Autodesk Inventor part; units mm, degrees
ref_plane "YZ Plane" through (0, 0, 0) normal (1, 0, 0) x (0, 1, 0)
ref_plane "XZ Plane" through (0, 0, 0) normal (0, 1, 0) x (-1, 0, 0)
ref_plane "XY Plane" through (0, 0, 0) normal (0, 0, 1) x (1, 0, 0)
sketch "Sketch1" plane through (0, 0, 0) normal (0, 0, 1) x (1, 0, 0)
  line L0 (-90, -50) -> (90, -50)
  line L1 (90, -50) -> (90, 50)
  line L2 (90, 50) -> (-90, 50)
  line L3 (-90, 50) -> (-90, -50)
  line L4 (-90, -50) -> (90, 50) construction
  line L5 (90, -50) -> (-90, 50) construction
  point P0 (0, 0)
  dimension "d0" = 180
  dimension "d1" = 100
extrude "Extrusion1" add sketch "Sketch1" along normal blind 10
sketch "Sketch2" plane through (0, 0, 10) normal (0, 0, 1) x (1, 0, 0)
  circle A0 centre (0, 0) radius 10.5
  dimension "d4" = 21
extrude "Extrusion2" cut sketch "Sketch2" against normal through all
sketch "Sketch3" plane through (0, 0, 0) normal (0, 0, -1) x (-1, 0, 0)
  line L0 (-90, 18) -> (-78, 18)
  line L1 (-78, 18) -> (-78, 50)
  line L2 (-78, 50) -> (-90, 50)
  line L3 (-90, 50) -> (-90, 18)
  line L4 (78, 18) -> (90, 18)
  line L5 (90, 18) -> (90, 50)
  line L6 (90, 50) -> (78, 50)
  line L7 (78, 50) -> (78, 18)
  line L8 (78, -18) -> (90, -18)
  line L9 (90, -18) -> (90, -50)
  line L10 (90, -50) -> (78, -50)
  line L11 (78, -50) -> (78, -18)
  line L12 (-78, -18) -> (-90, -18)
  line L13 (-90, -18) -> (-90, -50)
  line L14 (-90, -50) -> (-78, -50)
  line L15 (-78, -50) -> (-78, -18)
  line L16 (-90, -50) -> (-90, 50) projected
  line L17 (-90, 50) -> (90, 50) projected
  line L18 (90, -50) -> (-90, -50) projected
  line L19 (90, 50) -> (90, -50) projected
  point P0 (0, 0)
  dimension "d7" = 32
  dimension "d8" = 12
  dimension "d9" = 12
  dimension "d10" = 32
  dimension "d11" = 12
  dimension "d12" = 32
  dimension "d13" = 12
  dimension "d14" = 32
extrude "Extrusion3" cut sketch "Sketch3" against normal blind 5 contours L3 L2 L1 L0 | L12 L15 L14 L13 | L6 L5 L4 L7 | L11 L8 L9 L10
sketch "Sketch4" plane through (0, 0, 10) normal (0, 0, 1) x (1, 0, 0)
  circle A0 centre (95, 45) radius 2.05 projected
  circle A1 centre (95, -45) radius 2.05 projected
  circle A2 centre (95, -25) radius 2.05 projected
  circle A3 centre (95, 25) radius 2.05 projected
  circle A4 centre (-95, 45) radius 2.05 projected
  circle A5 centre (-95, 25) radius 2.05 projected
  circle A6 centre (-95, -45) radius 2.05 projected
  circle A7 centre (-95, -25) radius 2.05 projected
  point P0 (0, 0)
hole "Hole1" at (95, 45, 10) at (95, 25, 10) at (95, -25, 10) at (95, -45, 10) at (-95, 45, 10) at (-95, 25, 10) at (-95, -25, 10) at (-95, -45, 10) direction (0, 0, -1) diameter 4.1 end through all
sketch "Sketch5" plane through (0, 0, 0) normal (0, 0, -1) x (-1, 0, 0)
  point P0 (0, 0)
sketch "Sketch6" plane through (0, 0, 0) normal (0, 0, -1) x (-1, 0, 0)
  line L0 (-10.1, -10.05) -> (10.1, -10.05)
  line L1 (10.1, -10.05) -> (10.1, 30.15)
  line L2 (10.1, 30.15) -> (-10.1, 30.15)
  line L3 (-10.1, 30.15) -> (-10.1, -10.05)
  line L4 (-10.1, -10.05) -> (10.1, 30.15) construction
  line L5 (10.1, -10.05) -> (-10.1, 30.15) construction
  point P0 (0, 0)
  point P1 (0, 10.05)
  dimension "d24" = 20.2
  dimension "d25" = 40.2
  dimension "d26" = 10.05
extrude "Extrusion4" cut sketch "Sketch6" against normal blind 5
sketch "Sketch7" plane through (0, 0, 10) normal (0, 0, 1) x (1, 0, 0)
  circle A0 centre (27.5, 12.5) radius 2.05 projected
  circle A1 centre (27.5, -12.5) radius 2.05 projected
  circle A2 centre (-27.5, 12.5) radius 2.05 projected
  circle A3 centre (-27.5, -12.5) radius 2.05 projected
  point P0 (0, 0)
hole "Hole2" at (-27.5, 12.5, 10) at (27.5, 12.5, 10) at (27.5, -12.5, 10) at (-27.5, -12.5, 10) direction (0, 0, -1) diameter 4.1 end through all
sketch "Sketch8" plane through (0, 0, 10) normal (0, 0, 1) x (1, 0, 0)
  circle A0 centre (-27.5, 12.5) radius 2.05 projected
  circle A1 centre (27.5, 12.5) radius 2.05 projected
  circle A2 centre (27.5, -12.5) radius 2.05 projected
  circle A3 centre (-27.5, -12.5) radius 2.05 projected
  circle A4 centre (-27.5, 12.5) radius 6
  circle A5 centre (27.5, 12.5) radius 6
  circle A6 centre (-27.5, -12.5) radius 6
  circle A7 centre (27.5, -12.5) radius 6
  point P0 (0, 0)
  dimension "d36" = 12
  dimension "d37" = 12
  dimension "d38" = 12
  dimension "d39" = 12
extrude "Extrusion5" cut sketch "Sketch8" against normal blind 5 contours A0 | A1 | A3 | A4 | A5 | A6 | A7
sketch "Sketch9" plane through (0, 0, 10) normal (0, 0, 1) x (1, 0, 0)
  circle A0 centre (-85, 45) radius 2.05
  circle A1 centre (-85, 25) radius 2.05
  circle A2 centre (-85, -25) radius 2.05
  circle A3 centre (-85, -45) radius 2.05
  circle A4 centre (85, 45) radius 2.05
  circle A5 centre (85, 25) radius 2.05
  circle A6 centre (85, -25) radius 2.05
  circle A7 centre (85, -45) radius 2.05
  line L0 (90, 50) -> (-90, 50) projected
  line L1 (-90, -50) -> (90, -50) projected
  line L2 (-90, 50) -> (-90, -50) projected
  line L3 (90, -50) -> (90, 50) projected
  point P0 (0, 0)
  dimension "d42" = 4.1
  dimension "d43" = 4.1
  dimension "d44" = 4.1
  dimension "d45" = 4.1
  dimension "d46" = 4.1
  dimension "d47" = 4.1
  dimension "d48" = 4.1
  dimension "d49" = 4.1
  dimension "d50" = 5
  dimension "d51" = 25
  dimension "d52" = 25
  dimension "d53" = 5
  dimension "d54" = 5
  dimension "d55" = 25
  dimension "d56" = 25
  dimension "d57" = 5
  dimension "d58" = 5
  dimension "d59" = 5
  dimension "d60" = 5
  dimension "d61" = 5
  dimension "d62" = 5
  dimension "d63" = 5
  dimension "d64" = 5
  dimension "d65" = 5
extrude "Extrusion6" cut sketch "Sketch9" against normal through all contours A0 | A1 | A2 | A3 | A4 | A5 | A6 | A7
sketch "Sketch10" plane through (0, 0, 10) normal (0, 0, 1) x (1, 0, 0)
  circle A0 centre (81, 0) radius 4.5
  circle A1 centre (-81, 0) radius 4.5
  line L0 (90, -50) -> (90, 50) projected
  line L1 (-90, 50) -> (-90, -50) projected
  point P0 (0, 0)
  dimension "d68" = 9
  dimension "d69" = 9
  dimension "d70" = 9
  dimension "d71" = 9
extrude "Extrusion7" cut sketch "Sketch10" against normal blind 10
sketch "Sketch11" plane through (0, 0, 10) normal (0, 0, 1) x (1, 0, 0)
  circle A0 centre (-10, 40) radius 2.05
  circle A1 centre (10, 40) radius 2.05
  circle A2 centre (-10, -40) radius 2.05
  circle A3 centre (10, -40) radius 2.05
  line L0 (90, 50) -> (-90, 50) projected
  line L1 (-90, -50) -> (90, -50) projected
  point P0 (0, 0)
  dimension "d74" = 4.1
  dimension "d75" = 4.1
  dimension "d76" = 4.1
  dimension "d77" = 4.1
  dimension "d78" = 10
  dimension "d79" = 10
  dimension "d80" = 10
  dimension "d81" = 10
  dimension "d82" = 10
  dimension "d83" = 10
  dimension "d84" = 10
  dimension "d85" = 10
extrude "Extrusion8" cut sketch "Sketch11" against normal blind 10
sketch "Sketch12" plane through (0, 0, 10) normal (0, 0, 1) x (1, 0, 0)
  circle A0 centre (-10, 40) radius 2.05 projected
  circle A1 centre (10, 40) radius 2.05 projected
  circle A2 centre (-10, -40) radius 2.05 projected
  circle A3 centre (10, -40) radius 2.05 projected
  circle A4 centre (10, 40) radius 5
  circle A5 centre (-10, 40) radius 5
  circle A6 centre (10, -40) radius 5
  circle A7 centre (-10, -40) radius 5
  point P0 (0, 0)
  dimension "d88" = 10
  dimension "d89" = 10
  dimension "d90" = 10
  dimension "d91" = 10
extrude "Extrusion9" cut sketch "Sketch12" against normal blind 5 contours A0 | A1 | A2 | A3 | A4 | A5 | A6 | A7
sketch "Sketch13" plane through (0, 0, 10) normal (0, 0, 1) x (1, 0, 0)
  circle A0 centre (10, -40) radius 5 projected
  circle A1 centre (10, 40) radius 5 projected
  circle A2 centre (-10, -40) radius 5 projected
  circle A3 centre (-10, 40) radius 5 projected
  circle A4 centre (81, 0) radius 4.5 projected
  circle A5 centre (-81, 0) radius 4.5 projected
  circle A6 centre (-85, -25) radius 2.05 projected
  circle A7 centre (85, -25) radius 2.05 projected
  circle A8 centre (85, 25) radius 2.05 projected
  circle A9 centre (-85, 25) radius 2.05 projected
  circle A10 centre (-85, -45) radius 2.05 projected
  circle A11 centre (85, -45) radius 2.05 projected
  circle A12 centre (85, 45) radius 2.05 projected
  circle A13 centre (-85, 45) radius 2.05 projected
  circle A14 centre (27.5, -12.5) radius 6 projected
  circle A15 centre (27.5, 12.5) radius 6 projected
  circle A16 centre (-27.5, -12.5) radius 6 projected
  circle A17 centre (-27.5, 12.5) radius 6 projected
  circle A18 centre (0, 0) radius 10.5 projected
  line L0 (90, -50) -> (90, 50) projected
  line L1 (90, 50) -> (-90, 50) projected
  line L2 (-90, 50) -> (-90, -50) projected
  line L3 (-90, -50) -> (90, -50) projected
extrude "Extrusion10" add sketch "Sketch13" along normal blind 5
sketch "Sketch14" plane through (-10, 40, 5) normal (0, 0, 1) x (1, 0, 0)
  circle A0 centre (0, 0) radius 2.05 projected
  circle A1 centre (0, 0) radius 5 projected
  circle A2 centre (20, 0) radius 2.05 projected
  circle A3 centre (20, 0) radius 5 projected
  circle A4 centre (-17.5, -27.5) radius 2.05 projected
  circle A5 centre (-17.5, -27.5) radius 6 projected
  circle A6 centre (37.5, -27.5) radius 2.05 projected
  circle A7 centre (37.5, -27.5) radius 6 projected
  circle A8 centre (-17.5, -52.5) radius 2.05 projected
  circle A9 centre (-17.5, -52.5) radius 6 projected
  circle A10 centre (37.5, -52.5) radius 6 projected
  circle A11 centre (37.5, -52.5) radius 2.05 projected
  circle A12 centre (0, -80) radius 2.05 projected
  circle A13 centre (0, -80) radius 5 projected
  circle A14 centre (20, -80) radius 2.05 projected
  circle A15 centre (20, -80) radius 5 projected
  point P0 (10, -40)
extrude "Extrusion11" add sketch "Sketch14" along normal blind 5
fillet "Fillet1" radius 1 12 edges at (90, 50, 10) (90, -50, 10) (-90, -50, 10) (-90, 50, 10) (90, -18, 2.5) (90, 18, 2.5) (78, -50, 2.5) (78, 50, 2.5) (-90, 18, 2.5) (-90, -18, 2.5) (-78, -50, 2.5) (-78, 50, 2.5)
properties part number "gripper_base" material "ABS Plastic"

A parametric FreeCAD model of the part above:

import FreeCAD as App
import Part
import Sketcher
from FreeCAD import Vector
Q = App.Units.Quantity


def edges_at(feature, points):
    """Names of the edges that pass closest to the given points."""
    edges = feature.Shape.Edges
    near = lambda p: min(range(len(edges)), key=lambda i: edges[i].distToShape(Part.Vertex(*p))[0])
    return sorted({f"Edge{near(p) + 1}" for p in points})

doc = App.newDocument("Part")
body = doc.addObject("PartDesign::Body", "Body")

# Sketch on XY plane
sketch1 = doc.addObject("Sketcher::SketchObject", "Sketch")
body.addObject(sketch1)
sketch1.AttachmentSupport = (doc.XY_Plane, [""])
sketch1.MapMode = "FlatFace"
sketch1.addGeometry([
    Part.LineSegment(Vector(-90, 50, 0), Vector(-90, -50, 0)),
    Part.LineSegment(Vector(-90, -50, 0), Vector(90, -50, 0)),
    Part.LineSegment(Vector(90, -50, 0), Vector(90, 50, 0)),
    Part.LineSegment(Vector(90, 50, 0), Vector(-90, 50, 0)),
], False)
sketch1.addConstraint([
    Sketcher.Constraint("Coincident", 0, 2, 1, 1),
    Sketcher.Constraint("Coincident", 1, 2, 2, 1),
    Sketcher.Constraint("Coincident", 2, 2, 3, 1),
    Sketcher.Constraint("Coincident", 3, 2, 0, 1),
    Sketcher.Constraint("Vertical", 0),
    Sketcher.Constraint("Horizontal", 1),
    Sketcher.Constraint("Vertical", 2),
    Sketcher.Constraint("Horizontal", 3),
    Sketcher.Constraint("Symmetric", 0, 2, 2, 2, -1, 1),
    Sketcher.Constraint("DistanceX", 1, 1, 1, 2, Q("180 mm")),
    Sketcher.Constraint("DistanceY", 0, 2, 0, 1, Q("100 mm")),
])
pad1 = doc.addObject("PartDesign::Pad", "Pad")
body.addObject(pad1)
pad1.Profile = sketch1
pad1.Length = 10

# Sketch on XY plane
sketch2 = doc.addObject("Sketcher::SketchObject", "Sketch001")
body.addObject(sketch2)
sketch2.AttachmentSupport = (doc.XY_Plane, [""])
sketch2.MapMode = "FlatFace"
sketch2.AttachmentOffset = App.Placement(Vector(0, 0, 10), App.Rotation())
sketch2.addGeometry(Part.Circle(Vector(0, 0, 0), Vector(0, 0, 1), 10), False)
sketch2.addConstraint([
    Sketcher.Constraint("Coincident", 0, 3, -1, 1),
    Sketcher.Constraint("Diameter", 0, Q("21 mm")),
])
pocket1 = doc.addObject("PartDesign::Pocket", "Pocket")
body.addObject(pocket1)
pocket1.Profile = sketch2
pocket1.Type = "ThroughAll"

# Sketch on XY plane
sketch3 = doc.addObject("Sketcher::SketchObject", "Sketch002")
body.addObject(sketch3)
sketch3.AttachmentSupport = (doc.XY_Plane, [""])
sketch3.MapMode = "FlatFace"
sketch3.addGeometry([
    Part.LineSegment(Vector(90, 50, 0), Vector(90, 18, 0)),  # 0
    Part.LineSegment(Vector(90, 18, 0), Vector(78, 18, 0)),  # 1
    Part.LineSegment(Vector(78, 18, 0), Vector(78, 50, 0)),  # 2
    Part.LineSegment(Vector(78, 50, 0), Vector(90, 50, 0)),  # 3
    Part.LineSegment(Vector(78, -18, 0), Vector(90, -18, 0)),  # 4
    Part.LineSegment(Vector(90, -18, 0), Vector(90, -50, 0)),  # 5
    Part.LineSegment(Vector(90, -50, 0), Vector(78, -50, 0)),  # 6
    Part.LineSegment(Vector(78, -50, 0), Vector(78, -18, 0)),  # 7
    Part.LineSegment(Vector(-90, 50, 0), Vector(-78, 50, 0)),  # 8
    Part.LineSegment(Vector(-78, 50, 0), Vector(-78, 18, 0)),  # 9
    Part.LineSegment(Vector(-78, 18, 0), Vector(-90, 18, 0)),  # 10
    Part.LineSegment(Vector(-90, 18, 0), Vector(-90, 50, 0)),  # 11
    Part.LineSegment(Vector(-78, -18, 0), Vector(-78, -50, 0)),  # 12
    Part.LineSegment(Vector(-78, -50, 0), Vector(-90, -50, 0)),  # 13
    Part.LineSegment(Vector(-90, -50, 0), Vector(-90, -18, 0)),  # 14
    Part.LineSegment(Vector(-90, -18, 0), Vector(-78, -18, 0)),  # 15
], False)
sketch3.addConstraint([
    Sketcher.Constraint("Coincident", 0, 2, 1, 1),
    Sketcher.Constraint("Coincident", 1, 2, 2, 1),
    Sketcher.Constraint("Coincident", 2, 2, 3, 1),
    Sketcher.Constraint("Coincident", 3, 2, 0, 1),
    Sketcher.Constraint("Coincident", 4, 2, 5, 1),
    Sketcher.Constraint("Coincident", 5, 2, 6, 1),
    Sketcher.Constraint("Coincident", 6, 2, 7, 1),
    Sketcher.Constraint("Coincident", 7, 2, 4, 1),
    Sketcher.Constraint("Coincident", 8, 2, 9, 1),
    Sketcher.Constraint("Coincident", 9, 2, 10, 1),
    Sketcher.Constraint("Coincident", 10, 2, 11, 1),
    Sketcher.Constraint("Coincident", 11, 2, 8, 1),
    Sketcher.Constraint("Coincident", 12, 2, 13, 1),
    Sketcher.Constraint("Coincident", 13, 2, 14, 1),
    Sketcher.Constraint("Coincident", 14, 2, 15, 1),
    Sketcher.Constraint("Coincident", 15, 2, 12, 1),
    Sketcher.Constraint("Vertical", 0),
    Sketcher.Constraint("Horizontal", 1),
    Sketcher.Constraint("Vertical", 2),
    Sketcher.Constraint("Horizontal", 3),
    Sketcher.Constraint("Horizontal", 4),
    Sketcher.Constraint("Vertical", 5),
    Sketcher.Constraint("Horizontal", 6),
    Sketcher.Constraint("Vertical", 7),
    Sketcher.Constraint("Horizontal", 8),
    Sketcher.Constraint("Vertical", 9),
    Sketcher.Constraint("Horizontal", 10),
    Sketcher.Constraint("Vertical", 11),
    Sketcher.Constraint("Vertical", 12),
    Sketcher.Constraint("Horizontal", 13),
    Sketcher.Constraint("Vertical", 14),
    Sketcher.Constraint("Horizontal", 15),
    Sketcher.Constraint("Symmetric", 6, 2, 8, 2, -1, 1),
    Sketcher.Constraint("Symmetric", 4, 2, 10, 2, -1, 1),
    Sketcher.Constraint("Symmetric", 2, 2, 12, 2, -1, 1),
    Sketcher.Constraint("Symmetric", 0, 2, 14, 2, -1, 1),
    Sketcher.Constraint("Symmetric", 2, 2, 8, 2, -2),
    Sketcher.Constraint("Symmetric", 0, 2, 10, 2, -2),
    Sketcher.Constraint("DistanceX", 1, 2, 1, 1, Q("12 mm")),
    Sketcher.Constraint("DistanceY", 0, 2, 0, 1, Q("32 mm")),
    Sketcher.Constraint("DistanceX", -1, 1, 0, 2, Q("90 mm")),
    Sketcher.Constraint("DistanceY", -1, 1, 0, 2, Q("18 mm")),
])
pocket2 = doc.addObject("PartDesign::Pocket", "Pocket001")
body.addObject(pocket2)
pocket2.Profile = sketch3
pocket2.Length = 5
pocket2.Reversed = True

# Sketch on XY plane
sketch4 = doc.addObject("Sketcher::SketchObject", "Sketch003")
body.addObject(sketch4)
sketch4.AttachmentSupport = (doc.XY_Plane, [""])
sketch4.MapMode = "FlatFace"
sketch4.AttachmentOffset = App.Placement(Vector(0, 0, 10), App.Rotation())
sketch4.addGeometry([
    Part.Circle(Vector(95, 45, 0), Vector(0, 0, 1), 2),  # 0
    Part.Circle(Vector(95, 25, 0), Vector(0, 0, 1), 2),  # 1
    Part.Circle(Vector(95, -25, 0), Vector(0, 0, 1), 2),  # 2
    Part.Circle(Vector(95, -45, 0), Vector(0, 0, 1), 2),  # 3
    Part.Circle(Vector(-95, 45, 0), Vector(0, 0, 1), 2),  # 4
    Part.Circle(Vector(-95, 25, 0), Vector(0, 0, 1), 2),  # 5
    Part.Circle(Vector(-95, -25, 0), Vector(0, 0, 1), 2),  # 6
    Part.Circle(Vector(-95, -45, 0), Vector(0, 0, 1), 2),  # 7
], False)
sketch4.addConstraint([
    Sketcher.Constraint("Equal", 0, 1),
    Sketcher.Constraint("Equal", 1, 2),
    Sketcher.Constraint("Equal", 2, 3),
    Sketcher.Constraint("Equal", 3, 4),
    Sketcher.Constraint("Equal", 4, 5),
    Sketcher.Constraint("Equal", 5, 6),
    Sketcher.Constraint("Equal", 6, 7),
    Sketcher.Constraint("Symmetric", 3, 3, 4, 3, -1, 1),
    Sketcher.Constraint("Symmetric", 2, 3, 5, 3, -1, 1),
    Sketcher.Constraint("Symmetric", 1, 3, 6, 3, -1, 1),
    Sketcher.Constraint("Symmetric", 0, 3, 7, 3, -1, 1),
    Sketcher.Constraint("Symmetric", 0, 3, 4, 3, -2),
    Sketcher.Constraint("Symmetric", 1, 3, 5, 3, -2),
    Sketcher.Constraint("Vertical", 0, 3, 1, 3),
    Sketcher.Constraint("Diameter", 0, Q("4.1 mm")),
    Sketcher.Constraint("DistanceX", -1, 1, 0, 3, Q("95 mm")),
    Sketcher.Constraint("DistanceY", -1, 1, 0, 3, Q("45 mm")),
    Sketcher.Constraint("DistanceY", -1, 1, 1, 3, Q("25 mm")),
])
doc.recompute()
hole = doc.addObject("PartDesign::Hole", "Hole")
body.addObject(hole)
hole.Profile = sketch4
hole.ThreadType = "None"
hole.Diameter = 4.1
hole.DepthType = "ThroughAll"

# Sketch on XY plane
sketch5 = doc.addObject("Sketcher::SketchObject", "Sketch004")
body.addObject(sketch5)
sketch5.AttachmentSupport = (doc.XY_Plane, [""])
sketch5.MapMode = "FlatFace"
sketch5.addGeometry([
    Part.LineSegment(Vector(10, 30, 0), Vector(10, -10, 0)),
    Part.LineSegment(Vector(10, -10, 0), Vector(-10, -10, 0)),
    Part.LineSegment(Vector(-10, -10, 0), Vector(-10, 30, 0)),
    Part.LineSegment(Vector(-10, 30, 0), Vector(10, 30, 0)),
], False)
sketch5.addConstraint([
    Sketcher.Constraint("Coincident", 0, 2, 1, 1),
    Sketcher.Constraint("Coincident", 1, 2, 2, 1),
    Sketcher.Constraint("Coincident", 2, 2, 3, 1),
    Sketcher.Constraint("Coincident", 3, 2, 0, 1),
    Sketcher.Constraint("Vertical", 0),
    Sketcher.Constraint("Horizontal", 1),
    Sketcher.Constraint("Vertical", 2),
    Sketcher.Constraint("Horizontal", 3),
    Sketcher.Constraint("DistanceX", 1, 2, 1, 1, Q("20.2 mm")),
    Sketcher.Constraint("DistanceY", 0, 2, 0, 1, Q("40.2 mm")),
    Sketcher.Constraint("DistanceY", 0, 2, -1, 1, Q("10.05 mm")),
    Sketcher.Constraint("DistanceX", -1, 1, 0, 2, Q("10.1 mm")),
])
pocket3 = doc.addObject("PartDesign::Pocket", "Pocket002")
body.addObject(pocket3)
pocket3.Profile = sketch5
pocket3.Length = 5
pocket3.Reversed = True

# Sketch on XY plane
sketch6 = doc.addObject("Sketcher::SketchObject", "Sketch005")
body.addObject(sketch6)
sketch6.AttachmentSupport = (doc.XY_Plane, [""])
sketch6.MapMode = "FlatFace"
sketch6.AttachmentOffset = App.Placement(Vector(0, 0, 10), App.Rotation())
sketch6.addGeometry([
    Part.Circle(Vector(-27.5, 12.5, 0), Vector(0, 0, 1), 2),
    Part.Circle(Vector(27.5, 12.5, 0), Vector(0, 0, 1), 2),
    Part.Circle(Vector(27.5, -12.5, 0), Vector(0, 0, 1), 2),
    Part.Circle(Vector(-27.5, -12.5, 0), Vector(0, 0, 1), 2),
], False)
sketch6.addConstraint([
    Sketcher.Constraint("Equal", 0, 1),
    Sketcher.Constraint("Equal", 1, 2),
    Sketcher.Constraint("Equal", 2, 3),
    Sketcher.Constraint("Symmetric", 0, 3, 2, 3, -1, 1),
    Sketcher.Constraint("Symmetric", 1, 3, 3, 3, -1, 1),
    Sketcher.Constraint("Symmetric", 0, 3, 1, 3, -2),
    Sketcher.Constraint("Diameter", 0, Q("4.1 mm")),
    Sketcher.Constraint("DistanceX", 0, 3, 1, 3, Q("55 mm")),
    Sketcher.Constraint("DistanceY", 2, 3, 1, 3, Q("25 mm")),
])
doc.recompute()
hole2 = doc.addObject("PartDesign::Hole", "Hole001")
body.addObject(hole2)
hole2.Profile = sketch6
hole2.ThreadType = "None"
hole2.Diameter = 4.1
hole2.DepthType = "ThroughAll"

# Sketch on XY plane
sketch7 = doc.addObject("Sketcher::SketchObject", "Sketch006")
body.addObject(sketch7)
sketch7.AttachmentSupport = (doc.XY_Plane, [""])
sketch7.MapMode = "FlatFace"
sketch7.AttachmentOffset = App.Placement(Vector(0, 0, 10), App.Rotation())
sketch7.addGeometry([
    Part.Circle(Vector(-27.5, 12.5, 0), Vector(0, 0, 1), 6),  # 0
    Part.Circle(Vector(27.5, 12.5, 0), Vector(0, 0, 1), 6),  # 1
    Part.Circle(Vector(-27.5, -12.5, 0), Vector(0, 0, 1), 6),  # 2
    Part.Circle(Vector(27.5, -12.5, 0), Vector(0, 0, 1), 6),  # 3
    Part.Circle(Vector(27.5, -12.5, 0), Vector(0, 0, 1), 2),  # 4
], False)
sketch7.addConstraint([
    Sketcher.Constraint("Coincident", 4, 3, 3, 3),
    Sketcher.Constraint("Equal", 0, 1),
    Sketcher.Constraint("Equal", 1, 2),
    Sketcher.Constraint("Equal", 2, 3),
    Sketcher.Constraint("Symmetric", 1, 3, 2, 3, -1, 1),
    Sketcher.Constraint("Symmetric", 0, 3, 3, 3, -1, 1),
    Sketcher.Constraint("Symmetric", 0, 3, 1, 3, -2),
    Sketcher.Constraint("Diameter", 0, Q("12 mm")),
    Sketcher.Constraint("Diameter", 4, Q("4.1 mm")),
    Sketcher.Constraint("DistanceX", 0, 3, 1, 3, Q("55 mm")),
    Sketcher.Constraint("DistanceY", 2, 3, 0, 3, Q("25 mm")),
])
pocket4 = doc.addObject("PartDesign::Pocket", "Pocket003")
body.addObject(pocket4)
pocket4.Profile = sketch7
pocket4.Length = 5

# Sketch on XY plane
sketch8 = doc.addObject("Sketcher::SketchObject", "Sketch007")
body.addObject(sketch8)
sketch8.AttachmentSupport = (doc.XY_Plane, [""])
sketch8.MapMode = "FlatFace"
sketch8.AttachmentOffset = App.Placement(Vector(0, 0, 10), App.Rotation())
sketch8.addGeometry([
    Part.Circle(Vector(-85, 45, 0), Vector(0, 0, 1), 2),  # 0
    Part.Circle(Vector(-85, 25, 0), Vector(0, 0, 1), 2),  # 1
    Part.Circle(Vector(-85, -25, 0), Vector(0, 0, 1), 2),  # 2
    Part.Circle(Vector(-85, -45, 0), Vector(0, 0, 1), 2),  # 3
    Part.Circle(Vector(85, 45, 0), Vector(0, 0, 1), 2),  # 4
    Part.Circle(Vector(85, 25, 0), Vector(0, 0, 1), 2),  # 5
    Part.Circle(Vector(85, -25, 0), Vector(0, 0, 1), 2),  # 6
    Part.Circle(Vector(85, -45, 0), Vector(0, 0, 1), 2),  # 7
], False)
sketch8.addConstraint([
    Sketcher.Constraint("Equal", 0, 1),
    Sketcher.Constraint("Equal", 1, 2),
    Sketcher.Constraint("Equal", 2, 3),
    Sketcher.Constraint("Equal", 3, 4),
    Sketcher.Constraint("Equal", 4, 5),
    Sketcher.Constraint("Equal", 5, 6),
    Sketcher.Constraint("Equal", 6, 7),
    Sketcher.Constraint("Symmetric", 3, 3, 4, 3, -1, 1),
    Sketcher.Constraint("Symmetric", 2, 3, 5, 3, -1, 1),
    Sketcher.Constraint("Symmetric", 1, 3, 6, 3, -1, 1),
    Sketcher.Constraint("Symmetric", 0, 3, 7, 3, -1, 1),
    Sketcher.Constraint("Symmetric", 0, 3, 4, 3, -2),
    Sketcher.Constraint("Symmetric", 1, 3, 5, 3, -2),
    Sketcher.Constraint("Vertical", 0, 3, 1, 3),
    Sketcher.Constraint("Diameter", 0, Q("4.1 mm")),
    Sketcher.Constraint("DistanceY", -1, 1, 1, 3, Q("25 mm")),
    Sketcher.Constraint("DistanceX", 0, 3, -1, 1, Q("85 mm")),
    Sketcher.Constraint("DistanceY", -1, 1, 0, 3, Q("45 mm")),
])
pocket5 = doc.addObject("PartDesign::Pocket", "Pocket004")
body.addObject(pocket5)
pocket5.Profile = sketch8
pocket5.Type = "ThroughAll"

# Sketch on XY plane
sketch9 = doc.addObject("Sketcher::SketchObject", "Sketch008")
body.addObject(sketch9)
sketch9.AttachmentSupport = (doc.XY_Plane, [""])
sketch9.MapMode = "FlatFace"
sketch9.AttachmentOffset = App.Placement(Vector(0, 0, 10), App.Rotation())
sketch9.addGeometry([
    Part.Circle(Vector(81, 0, 0), Vector(0, 0, 1), 4.5),
    Part.Circle(Vector(-81, 0, 0), Vector(0, 0, 1), 4.5),
], False)
sketch9.addConstraint([
    Sketcher.Constraint("Equal", 0, 1),
    Sketcher.Constraint("Symmetric", 0, 3, 1, 3, -1, 1),
    Sketcher.Constraint("PointOnObject", 0, 3, -1),
    Sketcher.Constraint("Diameter", 0, Q("9 mm")),
    Sketcher.Constraint("DistanceX", -1, 1, 0, 3, Q("81 mm")),
])
pocket6 = doc.addObject("PartDesign::Pocket", "Pocket005")
body.addObject(pocket6)
pocket6.Profile = sketch9
pocket6.Length = 10

# Sketch on XY plane
sketch10 = doc.addObject("Sketcher::SketchObject", "Sketch009")
body.addObject(sketch10)
sketch10.AttachmentSupport = (doc.XY_Plane, [""])
sketch10.MapMode = "FlatFace"
sketch10.AttachmentOffset = App.Placement(Vector(0, 0, 10), App.Rotation())
sketch10.addGeometry([
    Part.Circle(Vector(-10, 40, 0), Vector(0, 0, 1), 2),
    Part.Circle(Vector(10, 40, 0), Vector(0, 0, 1), 2),
    Part.Circle(Vector(-10, -40, 0), Vector(0, 0, 1), 2),
    Part.Circle(Vector(10, -40, 0), Vector(0, 0, 1), 2),
], False)
sketch10.addConstraint([
    Sketcher.Constraint("Equal", 0, 1),
    Sketcher.Constraint("Equal", 1, 2),
    Sketcher.Constraint("Equal", 2, 3),
    Sketcher.Constraint("Symmetric", 1, 3, 2, 3, -1, 1),
    Sketcher.Constraint("Symmetric", 0, 3, 3, 3, -1, 1),
    Sketcher.Constraint("Symmetric", 0, 3, 1, 3, -2),
    Sketcher.Constraint("Diameter", 0, Q("4.1 mm")),
    Sketcher.Constraint("DistanceX", 0, 3, -1, 1, Q("10 mm")),
    Sketcher.Constraint("DistanceY", -1, 1, 0, 3, Q("40 mm")),
])
pocket7 = doc.addObject("PartDesign::Pocket", "Pocket006")
body.addObject(pocket7)
pocket7.Profile = sketch10
pocket7.Length = 10

# Sketch on XY plane
sketch11 = doc.addObject("Sketcher::SketchObject", "Sketch010")
body.addObject(sketch11)
sketch11.AttachmentSupport = (doc.XY_Plane, [""])
sketch11.MapMode = "FlatFace"
sketch11.AttachmentOffset = App.Placement(Vector(0, 0, 10), App.Rotation())
sketch11.addGeometry([
    Part.Circle(Vector(-10, 40, 0), Vector(0, 0, 1), 5),
    Part.Circle(Vector(10, 40, 0), Vector(0, 0, 1), 5),
    Part.Circle(Vector(-10, -40, 0), Vector(0, 0, 1), 5),
    Part.Circle(Vector(10, -40, 0), Vector(0, 0, 1), 5),
], False)
sketch11.addConstraint([
    Sketcher.Constraint("Equal", 0, 1),
    Sketcher.Constraint("Equal", 1, 2),
    Sketcher.Constraint("Equal", 2, 3),
    Sketcher.Constraint("Symmetric", 1, 3, 2, 3, -1, 1),
    Sketcher.Constraint("Symmetric", 0, 3, 3, 3, -1, 1),
    Sketcher.Constraint("Symmetric", 0, 3, 1, 3, -2),
    Sketcher.Constraint("Diameter", 0, Q("10 mm")),
    Sketcher.Constraint("DistanceX", 0, 3, -1, 1, Q("10 mm")),
    Sketcher.Constraint("DistanceY", -1, 1, 0, 3, Q("40 mm")),
])
pocket8 = doc.addObject("PartDesign::Pocket", "Pocket007")
body.addObject(pocket8)
pocket8.Profile = sketch11
pocket8.Length = 5

# Sketch on XY plane
sketch12 = doc.addObject("Sketcher::SketchObject", "Sketch011")
body.addObject(sketch12)
sketch12.AttachmentSupport = (doc.XY_Plane, [""])
sketch12.MapMode = "FlatFace"
sketch12.AttachmentOffset = App.Placement(Vector(0, 0, 10), App.Rotation())
sketch12.addGeometry([
    Part.LineSegment(Vector(-90, -50, 0), Vector(90, -50, 0)),  # 0
    Part.LineSegment(Vector(90, -50, 0), Vector(90, 50, 0)),  # 1
    Part.LineSegment(Vector(90, 50, 0), Vector(-90, 50, 0)),  # 2
    Part.LineSegment(Vector(-90, 50, 0), Vector(-90, -50, 0)),  # 3
    Part.Circle(Vector(-85, -45, 0), Vector(0, 0, 1), 2),  # 4
    Part.Circle(Vector(-10, -40, 0), Vector(0, 0, 1), 5),  # 5
    Part.Circle(Vector(-85, -25, 0), Vector(0, 0, 1), 2),  # 6
    Part.Circle(Vector(-27.5, -12.5, 0), Vector(0, 0, 1), 6),  # 7
    Part.Circle(Vector(10, -40, 0), Vector(0, 0, 1), 5),  # 8
    Part.Circle(Vector(85, -45, 0), Vector(0, 0, 1), 2),  # 9
    Part.Circle(Vector(27.5, -12.5, 0), Vector(0, 0, 1), 6),  # 10
    Part.Circle(Vector(85, -25, 0), Vector(0, 0, 1), 2),  # 11
    Part.Circle(Vector(-81, 0, 0), Vector(0, 0, 1), 4.5),  # 12
    Part.Circle(Vector(-27.5, 12.5, 0), Vector(0, 0, 1), 6),  # 13
    Part.Circle(Vector(-85, 25, 0), Vector(0, 0, 1), 2),  # 14
    Part.Circle(Vector(-85, 45, 0), Vector(0, 0, 1), 2),  # 15
    Part.Circle(Vector(-10, 40, 0), Vector(0, 0, 1), 5),  # 16
    Part.Circle(Vector(0, 0, 0), Vector(0, 0, 1), 10.5),  # 17
    Part.Circle(Vector(27.5, 12.5, 0), Vector(0, 0, 1), 6),  # 18
    Part.Circle(Vector(81, 0, 0), Vector(0, 0, 1), 4.5),  # 19
    Part.Circle(Vector(10, 40, 0), Vector(0, 0, 1), 5),  # 20
    Part.Circle(Vector(85, 25, 0), Vector(0, 0, 1), 2),  # 21
    Part.Circle(Vector(85, 45, 0), Vector(0, 0, 1), 2),  # 22
], False)
sketch12.addConstraint([
    Sketcher.Constraint("Coincident", 0, 2, 1, 1),
    Sketcher.Constraint("Coincident", 1, 2, 2, 1),
    Sketcher.Constraint("Coincident", 2, 2, 3, 1),
    Sketcher.Constraint("Coincident", 3, 2, 0, 1),
    Sketcher.Constraint("Horizontal", 0),
    Sketcher.Constraint("Vertical", 1),
    Sketcher.Constraint("Horizontal", 2),
    Sketcher.Constraint("Vertical", 3),
    Sketcher.Constraint("Coincident", 17, 3, -1, 1),
    Sketcher.Constraint("Equal", 4, 6),
    Sketcher.Constraint("Equal", 5, 8),
    Sketcher.Constraint("Equal", 6, 9),
    Sketcher.Constraint("Equal", 7, 10),
    Sketcher.Constraint("Equal", 9, 11),
    Sketcher.Constraint("Equal", 10, 13),
    Sketcher.Constraint("Equal", 11, 14),
    Sketcher.Constraint("Equal", 14, 15),
    Sketcher.Constraint("Equal", 8, 16),
    Sketcher.Constraint("Equal", 13, 18),
    Sketcher.Constraint("Equal", 12, 19),
    Sketcher.Constraint("Equal", 16, 20),
    Sketcher.Constraint("Equal", 15, 21),
    Sketcher.Constraint("Equal", 21, 22),
    Sketcher.Constraint("Symmetric", 10, 3, 13, 3, -1, 1),
    Sketcher.Constraint("Symmetric", 11, 3, 14, 3, -1, 1),
    Sketcher.Constraint("Symmetric", 9, 3, 15, 3, -1, 1),
    Sketcher.Constraint("Symmetric", 8, 3, 16, 3, -1, 1),
    Sketcher.Constraint("Symmetric", 7, 3, 18, 3, -1, 1),
    Sketcher.Constraint("Symmetric", 12, 3, 19, 3, -1, 1),
    Sketcher.Constraint("Symmetric", 5, 3, 20, 3, -1, 1),
    Sketcher.Constraint("Symmetric", 6, 3, 21, 3, -1, 1),
    Sketcher.Constraint("Symmetric", 4, 3, 22, 3, -1, 1),
    Sketcher.Constraint("Symmetric", 0, 2, 2, 2, -1, 1),
    Sketcher.Constraint("Symmetric", 5, 3, 8, 3, -2),
    Sketcher.Constraint("Symmetric", 4, 3, 9, 3, -2),
    Sketcher.Constraint("Symmetric", 7, 3, 10, 3, -2),
    Sketcher.Constraint("Symmetric", 6, 3, 11, 3, -2),
    Sketcher.Constraint("PointOnObject", 12, 3, -1),
    Sketcher.Constraint("Vertical", 4, 3, 6, 3),
    Sketcher.Constraint("Diameter", 5, Q("10 mm")),
    Sketcher.Constraint("Diameter", 7, Q("12 mm")),
    Sketcher.Constraint("Diameter", 12, Q("9 mm")),
    Sketcher.Constraint("Diameter", 17, Q("21 mm")),
    Sketcher.Constraint("Diameter", 4, Q("4.1 mm")),
    Sketcher.Constraint("DistanceX", 0, 1, 0, 2, Q("180 mm")),
    Sketcher.Constraint("DistanceY", 1, 1, 1, 2, Q("100 mm")),
    Sketcher.Constraint("DistanceX", 4, 3, -1, 1, Q("85 mm")),
    Sketcher.Constraint("DistanceY", 4, 3, -1, 1, Q("45 mm")),
    Sketcher.Constraint("DistanceX", 5, 3, -1, 1, Q("10 mm")),
    Sketcher.Constraint("DistanceY", 5, 3, -1, 1, Q("40 mm")),
    Sketcher.Constraint("DistanceY", 6, 3, -1, 1, Q("25 mm")),
    Sketcher.Constraint("DistanceX", 12, 3, -1, 1, Q("81 mm")),
    Sketcher.Constraint("DistanceX", 7, 3, 10, 3, Q("55 mm")),
    Sketcher.Constraint("DistanceY", 7, 3, 13, 3, Q("25 mm")),
])
pad2 = doc.addObject("PartDesign::Pad", "Pad001")
body.addObject(pad2)
pad2.Profile = sketch12
pad2.Length = 5

# Sketch on XY plane
sketch13 = doc.addObject("Sketcher::SketchObject", "Sketch012")
body.addObject(sketch13)
sketch13.AttachmentSupport = (doc.XY_Plane, [""])
sketch13.MapMode = "FlatFace"
sketch13.AttachmentOffset = App.Placement(Vector(0, 0, 5), App.Rotation())
sketch13.addGeometry([
    Part.Circle(Vector(-10, 40, 0), Vector(0, 0, 1), 5),  # 0
    Part.Circle(Vector(-10, 40, 0), Vector(0, 0, 1), 2),  # 1
    Part.Circle(Vector(10, 40, 0), Vector(0, 0, 1), 5),  # 2
    Part.Circle(Vector(10, 40, 0), Vector(0, 0, 1), 2),  # 3
    Part.Circle(Vector(-27.5, 12.5, 0), Vector(0, 0, 1), 6),  # 4
    Part.Circle(Vector(-27.5, 12.5, 0), Vector(0, 0, 1), 2),  # 5
    Part.Circle(Vector(27.5, 12.5, 0), Vector(0, 0, 1), 6),  # 6
    Part.Circle(Vector(27.5, 12.5, 0), Vector(0, 0, 1), 2),  # 7
    Part.Circle(Vector(-27.5, -12.5, 0), Vector(0, 0, 1), 6),  # 8
    Part.Circle(Vector(-27.5, -12.5, 0), Vector(0, 0, 1), 2),  # 9
    Part.Circle(Vector(27.5, -12.5, 0), Vector(0, 0, 1), 6),  # 10
    Part.Circle(Vector(27.5, -12.5, 0), Vector(0, 0, 1), 2),  # 11
    Part.Circle(Vector(-10, -40, 0), Vector(0, 0, 1), 5),  # 12
    Part.Circle(Vector(-10, -40, 0), Vector(0, 0, 1), 2),  # 13
    Part.Circle(Vector(10, -40, 0), Vector(0, 0, 1), 5),  # 14
    Part.Circle(Vector(10, -40, 0), Vector(0, 0, 1), 2),  # 15
], False)
sketch13.addConstraint([
    Sketcher.Constraint("Coincident", 1, 3, 0, 3),
    Sketcher.Constraint("Coincident", 3, 3, 2, 3),
    Sketcher.Constraint("Coincident", 5, 3, 4, 3),
    Sketcher.Constraint("Coincident", 7, 3, 6, 3),
    Sketcher.Constraint("Coincident", 9, 3, 8, 3),
    Sketcher.Constraint("Coincident", 11, 3, 10, 3),
    Sketcher.Constraint("Coincident", 13, 3, 12, 3),
    Sketcher.Constraint("Coincident", 15, 3, 14, 3),
    Sketcher.Constraint("Equal", 0, 2),
    Sketcher.Constraint("Equal", 1, 3),
    Sketcher.Constraint("Equal", 3, 5),
    Sketcher.Constraint("Equal", 4, 6),
    Sketcher.Constraint("Equal", 5, 7),
    Sketcher.Constraint("Equal", 6, 8),
    Sketcher.Constraint("Equal", 7, 9),
    Sketcher.Constraint("Equal", 8, 10),
    Sketcher.Constraint("Equal", 9, 11),
    Sketcher.Constraint("Equal", 2, 12),
    Sketcher.Constraint("Equal", 11, 13),
    Sketcher.Constraint("Equal", 12, 14),
    Sketcher.Constraint("Equal", 13, 15),
    Sketcher.Constraint("Symmetric", 6, 3, 8, 3, -1, 1),
    Sketcher.Constraint("Symmetric", 4, 3, 10, 3, -1, 1),
    Sketcher.Constraint("Symmetric", 2, 3, 12, 3, -1, 1),
    Sketcher.Constraint("Symmetric", 0, 3, 14, 3, -1, 1),
    Sketcher.Constraint("Symmetric", 0, 3, 2, 3, -2),
    Sketcher.Constraint("Symmetric", 4, 3, 6, 3, -2),
    Sketcher.Constraint("Diameter", 0, Q("10 mm")),
    Sketcher.Constraint("Diameter", 4, Q("12 mm")),
    Sketcher.Constraint("Diameter", 1, Q("4.1 mm")),
    Sketcher.Constraint("DistanceX", 0, 3, -1, 1, Q("10 mm")),
    Sketcher.Constraint("DistanceY", -1, 1, 0, 3, Q("40 mm")),
    Sketcher.Constraint("DistanceX", 4, 3, 6, 3, Q("55 mm")),
    Sketcher.Constraint("DistanceY", 8, 3, 4, 3, Q("25 mm")),
])
pad3 = doc.addObject("PartDesign::Pad", "Pad002")
body.addObject(pad3)
pad3.Profile = sketch13
pad3.Length = 5
doc.recompute()

fillet = doc.addObject("PartDesign::Fillet", "Fillet")
body.addObject(fillet)
fillet.Base = (pad3, edges_at(pad3, [
    (90, 50, 10),
    (90, -50, 10),
    (-90, -50, 10),
    (-90, 50, 10),
    (90, -18, 2.5),
    (90, 18, 2.5),
    (78, -50, 2.5),
    (78, 50, 2.5),
    (-90, 18, 2.5),
    (-90, -18, 2.5),
    (-78, -50, 2.5),
    (-78, 50, 2.5),
]))
fillet.Radius = 1

doc.recompute()
